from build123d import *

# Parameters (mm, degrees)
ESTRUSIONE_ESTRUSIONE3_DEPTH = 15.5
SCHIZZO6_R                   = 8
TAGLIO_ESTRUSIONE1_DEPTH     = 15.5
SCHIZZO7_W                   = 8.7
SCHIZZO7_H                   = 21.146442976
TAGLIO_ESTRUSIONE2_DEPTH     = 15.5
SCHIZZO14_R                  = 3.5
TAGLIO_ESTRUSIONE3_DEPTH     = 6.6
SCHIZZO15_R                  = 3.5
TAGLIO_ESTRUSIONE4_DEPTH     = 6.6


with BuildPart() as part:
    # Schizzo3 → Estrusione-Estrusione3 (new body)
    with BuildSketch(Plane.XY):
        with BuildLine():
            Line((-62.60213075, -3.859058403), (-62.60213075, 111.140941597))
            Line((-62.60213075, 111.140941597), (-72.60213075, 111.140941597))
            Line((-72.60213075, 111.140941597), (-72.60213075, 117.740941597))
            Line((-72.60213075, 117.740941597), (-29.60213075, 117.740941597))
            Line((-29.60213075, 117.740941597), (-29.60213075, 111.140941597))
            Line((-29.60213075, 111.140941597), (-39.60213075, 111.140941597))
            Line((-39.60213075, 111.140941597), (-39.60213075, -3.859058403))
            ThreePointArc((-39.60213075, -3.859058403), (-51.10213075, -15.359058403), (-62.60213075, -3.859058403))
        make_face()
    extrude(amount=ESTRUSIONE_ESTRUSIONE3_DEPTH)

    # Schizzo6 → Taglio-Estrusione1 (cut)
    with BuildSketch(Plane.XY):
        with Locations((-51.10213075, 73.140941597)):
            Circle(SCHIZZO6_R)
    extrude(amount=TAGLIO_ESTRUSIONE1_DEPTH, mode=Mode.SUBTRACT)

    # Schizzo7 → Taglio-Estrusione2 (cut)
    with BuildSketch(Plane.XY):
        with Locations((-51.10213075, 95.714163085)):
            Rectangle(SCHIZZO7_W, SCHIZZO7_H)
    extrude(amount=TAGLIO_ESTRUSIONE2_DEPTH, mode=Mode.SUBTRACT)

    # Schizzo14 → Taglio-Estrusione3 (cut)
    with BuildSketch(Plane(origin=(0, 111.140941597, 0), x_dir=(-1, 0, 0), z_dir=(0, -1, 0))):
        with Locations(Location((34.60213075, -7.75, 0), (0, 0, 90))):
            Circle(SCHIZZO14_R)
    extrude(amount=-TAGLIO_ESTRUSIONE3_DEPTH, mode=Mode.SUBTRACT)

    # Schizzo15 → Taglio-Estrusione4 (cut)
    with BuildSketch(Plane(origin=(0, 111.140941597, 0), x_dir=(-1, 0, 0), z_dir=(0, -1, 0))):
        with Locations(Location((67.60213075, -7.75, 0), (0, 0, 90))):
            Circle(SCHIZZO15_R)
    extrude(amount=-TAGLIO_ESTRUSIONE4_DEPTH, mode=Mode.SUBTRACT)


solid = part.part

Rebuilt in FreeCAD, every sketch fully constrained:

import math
import FreeCAD as App
import Part
import Sketcher

V = App.Vector
Q = App.Units.Quantity


def add_polygon(sketch, points):
    """Adds a closed chain of lines whose ends are joined by coincident constraints."""
    first, n = sketch.GeometryCount, len(points)
    for a, b in zip(points, points[1:] + points[:1]):
        sketch.addGeometry(Part.LineSegment(App.Vector(*a, 0), App.Vector(*b, 0)), False)
    for i in range(n):
        sketch.addConstraint(Sketcher.Constraint("Coincident", first + i, 2, first + (i + 1) % n, 1))

doc = App.newDocument("Part")
body = doc.addObject("PartDesign::Body", "Body")

# Sketch on XY plane
sketch1 = body.newObject("Sketcher::SketchObject", "Sketch")
sketch1.AttachmentSupport = (doc.getObject("XY_Plane"), [""])
sketch1.MapMode = "FlatFace"
sketch1.addGeometry(Part.LineSegment(V(-63, 111, 0), V(-63, -4, 0)), False)
sketch1.addGeometry(Part.ArcOfCircle(Part.Circle(V(-51, -4, 0), V(0, 0, 1), 12), math.radians(180), math.radians(360)), False)
sketch1.addGeometry(Part.LineSegment(V(-40, -4, 0), V(-40, 111, 0)), False)
sketch1.addGeometry(Part.LineSegment(V(-40, 111, 0), V(-30, 111, 0)), False)
sketch1.addGeometry(Part.LineSegment(V(-30, 111, 0), V(-30, 118, 0)), False)
sketch1.addGeometry(Part.LineSegment(V(-30, 118, 0), V(-73, 118, 0)), False)
sketch1.addGeometry(Part.LineSegment(V(-73, 118, 0), V(-73, 111, 0)), False)
sketch1.addGeometry(Part.LineSegment(V(-73, 111, 0), V(-63, 111, 0)), False)
sketch1.addConstraint(Sketcher.Constraint("Tangent", 0, 2, 1, 1))
sketch1.addConstraint(Sketcher.Constraint("Tangent", 1, 2, 2, 1))
sketch1.addConstraint(Sketcher.Constraint("Coincident", 2, 2, 3, 1))
sketch1.addConstraint(Sketcher.Constraint("Coincident", 3, 2, 4, 1))
sketch1.addConstraint(Sketcher.Constraint("Coincident", 4, 2, 5, 1))
sketch1.addConstraint(Sketcher.Constraint("Coincident", 5, 2, 6, 1))
sketch1.addConstraint(Sketcher.Constraint("Coincident", 6, 2, 7, 1))
sketch1.addConstraint(Sketcher.Constraint("Coincident", 7, 2, 0, 1))
sketch1.addConstraint(Sketcher.Constraint("Vertical", 0))
sketch1.addConstraint(Sketcher.Constraint("Vertical", 2))
sketch1.addConstraint(Sketcher.Constraint("Horizontal", 3))
sketch1.addConstraint(Sketcher.Constraint("Vertical", 4))
sketch1.addConstraint(Sketcher.Constraint("Horizontal", 5))
sketch1.addConstraint(Sketcher.Constraint("Vertical", 6))
sketch1.addConstraint(Sketcher.Constraint("Horizontal", 7))
sketch1.addConstraint(Sketcher.Constraint("Horizontal", 3, 2, 6, 2))
sketch1.addConstraint(Sketcher.Constraint("Equal", 3, 7))
sketch1.addConstraint(Sketcher.Constraint("Radius", 1, Q("11.5 mm")))
sketch1.addConstraint(Sketcher.Constraint("DistanceX", 3, 1, 3, 2, Q("10 mm")))
sketch1.addConstraint(Sketcher.Constraint("DistanceY", 0, 2, 0, 1, Q("115 mm")))
sketch1.addConstraint(Sketcher.Constraint("DistanceY", 4, 1, 4, 2, Q("6.6 mm")))
sketch1.addConstraint(Sketcher.Constraint("DistanceX", 1, 3, -1, 1, Q("51.102131 mm")))
sketch1.addConstraint(Sketcher.Constraint("DistanceY", 1, 3, -1, 1, Q("3.859058 mm")))
pad1 = body.newObject("PartDesign::Pad", "Pad")
pad1.Profile = sketch1
pad1.Length = 15.5

# Sketch on XY plane
sketch2 = body.newObject("Sketcher::SketchObject", "Sketch001")
sketch2.AttachmentSupport = (doc.getObject("XY_Plane"), [""])
sketch2.MapMode = "FlatFace"
sketch2.addGeometry(Part.Circle(V(-51, 73, 0), V(0, 0, 1), 8), False)
sketch2.addConstraint(Sketcher.Constraint("Diameter", 0, Q("16 mm")))
sketch2.addConstraint(Sketcher.Constraint("DistanceX", 0, 3, -1, 1, Q("51.102131 mm")))
sketch2.addConstraint(Sketcher.Constraint("DistanceY", -1, 1, 0, 3, Q("73.140942 mm")))
pocket1 = body.newObject("PartDesign::Pocket", "Pocket")
pocket1.Profile = sketch2
pocket1.Length = 15.5
pocket1.Reversed = True

# Sketch on XY plane
sketch3 = body.newObject("Sketcher::SketchObject", "Sketch002")
sketch3.AttachmentSupport = (doc.getObject("XY_Plane"), [""])
sketch3.MapMode = "FlatFace"
add_polygon(sketch3, [(-55, 106), (-55, 85), (-47, 85), (-47, 106)])  # lines 0-3
sketch3.addConstraint(Sketcher.Constraint("Vertical", 0))
sketch3.addConstraint(Sketcher.Constraint("Horizontal", 1))
sketch3.addConstraint(Sketcher.Constraint("Vertical", 2))
sketch3.addConstraint(Sketcher.Constraint("Horizontal", 3))
sketch3.addConstraint(Sketcher.Constraint("DistanceX", 1, 1, 1, 2, Q("8.7 mm")))
sketch3.addConstraint(Sketcher.Constraint("DistanceY", 0, 2, 0, 1, Q("21.146443 mm")))
sketch3.addConstraint(Sketcher.Constraint("DistanceX", 0, 2, -1, 1, Q("55.452131 mm")))
sketch3.addConstraint(Sketcher.Constraint("DistanceY", -1, 1, 0, 2, Q("85.140942 mm")))
pocket2 = body.newObject("PartDesign::Pocket", "Pocket001")
pocket2.Profile = sketch3
pocket2.Length = 15.5
pocket2.Reversed = True

# Sketch on XZ plane
sketch4 = body.newObject("Sketcher::SketchObject", "Sketch003")
sketch4.AttachmentSupport = (doc.getObject("XZ_Plane"), [""])
sketch4.MapMode = "FlatFace"
sketch4.AttachmentOffset = App.Placement(V(0, 0, -111.140942), App.Rotation())
sketch4.addGeometry(Part.Circle(V(-34.6, 7.8, 0), V(0, 0, 1), 3.5), False)
sketch4.addConstraint(Sketcher.Constraint("Diameter", 0, Q("7 mm")))
sketch4.addConstraint(Sketcher.Constraint("DistanceY", -1, 1, 0, 3, Q("7.75 mm")))
sketch4.addConstraint(Sketcher.Constraint("DistanceX", 0, 3, -1, 1, Q("34.602131 mm")))
pocket3 = body.newObject("PartDesign::Pocket", "Pocket002")
pocket3.Profile = sketch4
pocket3.Length = 6.6

# Sketch on XZ plane
sketch5 = body.newObject("Sketcher::SketchObject", "Sketch004")
sketch5.AttachmentSupport = (doc.getObject("XZ_Plane"), [""])
sketch5.MapMode = "FlatFace"
sketch5.AttachmentOffset = App.Placement(V(0, 0, -111.140942), App.Rotation())
sketch5.addGeometry(Part.Circle(V(-67.6, 7.8, 0), V(0, 0, 1), 3.5), False)
sketch5.addConstraint(Sketcher.Constraint("Diameter", 0, Q("7 mm")))
sketch5.addConstraint(Sketcher.Constraint("DistanceY", -1, 1, 0, 3, Q("7.75 mm")))
sketch5.addConstraint(Sketcher.Constraint("DistanceX", 0, 3, -1, 1, Q("67.602131 mm")))
pocket4 = body.newObject("PartDesign::Pocket", "Pocket003")
pocket4.Profile = sketch5
pocket4.Length = 6.6

doc.recompute()
